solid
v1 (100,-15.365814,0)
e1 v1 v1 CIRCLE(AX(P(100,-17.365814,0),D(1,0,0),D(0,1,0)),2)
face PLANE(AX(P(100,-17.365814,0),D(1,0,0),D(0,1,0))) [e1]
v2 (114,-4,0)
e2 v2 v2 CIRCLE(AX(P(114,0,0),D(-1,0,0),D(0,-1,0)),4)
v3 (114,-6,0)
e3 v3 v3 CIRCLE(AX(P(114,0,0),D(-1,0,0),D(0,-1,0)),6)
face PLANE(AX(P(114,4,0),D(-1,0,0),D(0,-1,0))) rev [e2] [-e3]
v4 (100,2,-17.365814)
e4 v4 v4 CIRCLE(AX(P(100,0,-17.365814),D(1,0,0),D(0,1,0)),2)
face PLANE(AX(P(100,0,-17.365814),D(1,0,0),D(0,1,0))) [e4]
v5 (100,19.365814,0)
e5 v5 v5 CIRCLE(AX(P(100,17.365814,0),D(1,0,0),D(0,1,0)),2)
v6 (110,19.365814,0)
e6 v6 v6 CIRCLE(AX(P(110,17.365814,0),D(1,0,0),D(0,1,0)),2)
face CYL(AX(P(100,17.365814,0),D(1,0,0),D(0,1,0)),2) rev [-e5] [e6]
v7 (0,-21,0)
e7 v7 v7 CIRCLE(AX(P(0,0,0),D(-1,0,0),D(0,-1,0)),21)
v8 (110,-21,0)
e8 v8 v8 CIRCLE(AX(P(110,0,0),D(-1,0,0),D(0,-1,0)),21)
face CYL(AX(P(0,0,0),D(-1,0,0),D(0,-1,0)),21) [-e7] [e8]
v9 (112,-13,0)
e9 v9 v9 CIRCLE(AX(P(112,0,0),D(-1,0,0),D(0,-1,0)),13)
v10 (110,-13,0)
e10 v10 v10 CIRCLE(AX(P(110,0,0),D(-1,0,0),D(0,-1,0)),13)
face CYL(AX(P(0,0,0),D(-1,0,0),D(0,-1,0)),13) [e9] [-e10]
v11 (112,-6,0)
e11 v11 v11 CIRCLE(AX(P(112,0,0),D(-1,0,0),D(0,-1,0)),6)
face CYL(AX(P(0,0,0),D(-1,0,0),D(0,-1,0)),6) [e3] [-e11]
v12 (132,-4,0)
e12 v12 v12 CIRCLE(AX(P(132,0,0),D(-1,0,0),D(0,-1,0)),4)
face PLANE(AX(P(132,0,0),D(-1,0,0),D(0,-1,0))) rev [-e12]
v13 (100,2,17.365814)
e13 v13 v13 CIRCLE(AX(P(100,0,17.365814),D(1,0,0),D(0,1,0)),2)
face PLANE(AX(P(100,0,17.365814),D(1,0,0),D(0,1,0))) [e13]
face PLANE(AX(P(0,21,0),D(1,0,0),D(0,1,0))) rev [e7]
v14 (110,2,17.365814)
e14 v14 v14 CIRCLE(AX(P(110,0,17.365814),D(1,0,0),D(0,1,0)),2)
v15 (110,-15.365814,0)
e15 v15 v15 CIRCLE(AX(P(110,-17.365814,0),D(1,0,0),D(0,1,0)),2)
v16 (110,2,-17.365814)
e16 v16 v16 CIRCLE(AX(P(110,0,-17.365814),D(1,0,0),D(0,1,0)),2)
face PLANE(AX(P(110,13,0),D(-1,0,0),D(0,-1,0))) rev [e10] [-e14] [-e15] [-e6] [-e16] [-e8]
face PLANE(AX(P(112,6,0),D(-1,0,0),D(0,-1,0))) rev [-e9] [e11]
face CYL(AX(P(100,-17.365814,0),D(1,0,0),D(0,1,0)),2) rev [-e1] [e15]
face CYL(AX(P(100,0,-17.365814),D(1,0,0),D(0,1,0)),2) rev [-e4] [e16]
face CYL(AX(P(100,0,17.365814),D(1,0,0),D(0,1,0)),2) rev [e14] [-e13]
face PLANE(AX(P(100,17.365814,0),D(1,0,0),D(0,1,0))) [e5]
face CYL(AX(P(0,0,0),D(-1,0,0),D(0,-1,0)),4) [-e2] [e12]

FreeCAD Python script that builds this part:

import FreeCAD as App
import Part
import Sketcher
Q = App.Units.Quantity

doc = App.newDocument("Part")
body = doc.addObject("PartDesign::Body", "Body")

# Sketch on XY plane
sketch1 = body.newObject("Sketcher::SketchObject", "Sketch")
sketch1.AttachmentSupport = (doc.getObject("XY_Plane"), [""])
sketch1.MapMode = "FlatFace"
sketch1.addGeometry(Part.LineSegment(App.Vector(0, 0, 0), App.Vector(132, 0, 0)), False)
sketch1.addGeometry(Part.LineSegment(App.Vector(132, 0, 0), App.Vector(132, 4, 0)), False)
sketch1.addGeometry(Part.LineSegment(App.Vector(132, 4, 0), App.Vector(114, 4, 0)), False)
sketch1.addGeometry(Part.LineSegment(App.Vector(114, 4, 0), App.Vector(114, 6, 0)), False)
sketch1.addGeometry(Part.LineSegment(App.Vector(114, 6, 0), App.Vector(112, 6, 0)), False)
sketch1.addGeometry(Part.LineSegment(App.Vector(112, 6, 0), App.Vector(112, 13, 0)), False)
sketch1.addGeometry(Part.LineSegment(App.Vector(112, 13, 0), App.Vector(110, 13, 0)), False)
sketch1.addGeometry(Part.LineSegment(App.Vector(110, 13, 0), App.Vector(110, 21, 0)), False)
sketch1.addGeometry(Part.LineSegment(App.Vector(110, 21, 0), App.Vector(0, 21, 0)), False)
sketch1.addGeometry(Part.LineSegment(App.Vector(0, 21, 0), App.Vector(0, 0, 0)), False)
sketch1.addConstraint(Sketcher.Constraint("Coincident", 0, 2, 1, 1))
sketch1.addConstraint(Sketcher.Constraint("Coincident", 1, 2, 2, 1))
sketch1.addConstraint(Sketcher.Constraint("Coincident", 2, 2, 3, 1))
sketch1.addConstraint(Sketcher.Constraint("Coincident", 3, 2, 4, 1))
sketch1.addConstraint(Sketcher.Constraint("Coincident", 4, 2, 5, 1))
sketch1.addConstraint(Sketcher.Constraint("Coincident", 5, 2, 6, 1))
sketch1.addConstraint(Sketcher.Constraint("Coincident", 6, 2, 7, 1))
sketch1.addConstraint(Sketcher.Constraint("Coincident", 7, 2, 8, 1))
sketch1.addConstraint(Sketcher.Constraint("Coincident", 8, 2, 9, 1))
sketch1.addConstraint(Sketcher.Constraint("Coincident", 9, 2, 0, 1))
sketch1.addConstraint(Sketcher.Constraint("Horizontal", 0))
sketch1.addConstraint(Sketcher.Constraint("Vertical", 1))
sketch1.addConstraint(Sketcher.Constraint("Horizontal", 2))
sketch1.addConstraint(Sketcher.Constraint("Vertical", 3))
sketch1.addConstraint(Sketcher.Constraint("Horizontal", 4))
sketch1.addConstraint(Sketcher.Constraint("Vertical", 5))
sketch1.addConstraint(Sketcher.Constraint("Horizontal", 6))
sketch1.addConstraint(Sketcher.Constraint("Vertical", 7))
sketch1.addConstraint(Sketcher.Constraint("Horizontal", 8))
sketch1.addConstraint(Sketcher.Constraint("Vertical", 9))
sketch1.addConstraint(Sketcher.Constraint("Coincident", 9, 2, -1, 1))
sketch1.addConstraint(Sketcher.Constraint("Equal", 4, 6))
sketch1.addConstraint(Sketcher.Constraint("Equal", 6, 3))
sketch1.addConstraint(Sketcher.Constraint("DistanceX", 0, 1, 0, 2, Q("132 mm")))
sketch1.addConstraint(Sketcher.Constraint("DistanceX", 2, 2, 2, 1, Q("18 mm")))
sketch1.addConstraint(Sketcher.Constraint("DistanceX", 4, 2, 4, 1, Q("2 mm")))
sketch1.addConstraint(Sketcher.Constraint("DistanceY", 1, 1, 1, 2, Q("4 mm")))
sketch1.addConstraint(Sketcher.Constraint("DistanceY", 5, 1, 5, 2, Q("7 mm")))
sketch1.addConstraint(Sketcher.Constraint("DistanceY", 7, 1, 7, 2, Q("8 mm")))
revolution = body.newObject("PartDesign::Revolution", "Revolution")
revolution.Profile = sketch1
revolution.ReferenceAxis = (sketch1, ["H_Axis"])
revolution.Angle = 360

# Sketch on YZ plane
sketch2 = body.newObject("Sketcher::SketchObject", "Sketch001")
sketch2.AttachmentSupport = (doc.getObject("YZ_Plane"), [""])
sketch2.MapMode = "FlatFace"
sketch2.AttachmentOffset = App.Placement(App.Vector(0, 0, 110), App.Rotation())
sketch2.addGeometry(Part.Circle(App.Vector(17.365814, 0, 0), App.Vector(0, 0, 1), 2), False)
sketch2.addGeometry(Part.Circle(App.Vector(0, -17.365814, 0), App.Vector(0, 0, 1), 2), False)
sketch2.addGeometry(Part.Circle(App.Vector(-17.365814, 0, 0), App.Vector(0, 0, 1), 2), False)
sketch2.addGeometry(Part.Circle(App.Vector(0, 17.365814, 0), App.Vector(0, 0, 1), 2), False)
sketch2.addConstraint(Sketcher.Constraint("Equal", 0, 1))
sketch2.addConstraint(Sketcher.Constraint("Equal", 1, 2))
sketch2.addConstraint(Sketcher.Constraint("Equal", 2, 3))
sketch2.addConstraint(Sketcher.Constraint("Symmetric", 0, 3, 2, 3, -1, 1))
sketch2.addConstraint(Sketcher.Constraint("Symmetric", 1, 3, 3, 3, -1, 1))
sketch2.addConstraint(Sketcher.Constraint("PointOnObject", 0, 3, -1))
sketch2.addConstraint(Sketcher.Constraint("PointOnObject", 1, 3, -2))
sketch2.addConstraint(Sketcher.Constraint("Diameter", 0, Q("4 mm")))
sketch2.addConstraint(Sketcher.Constraint("DistanceX", -1, 1, 0, 3, Q("17.365814 mm")))
sketch2.addConstraint(Sketcher.Constraint("DistanceY", 1, 3, -1, 1, Q("17.365814 mm")))
pocket1 = body.newObject("PartDesign::Pocket", "Pocket")
pocket1.Profile = sketch2
pocket1.Length = 10

doc.recompute()
